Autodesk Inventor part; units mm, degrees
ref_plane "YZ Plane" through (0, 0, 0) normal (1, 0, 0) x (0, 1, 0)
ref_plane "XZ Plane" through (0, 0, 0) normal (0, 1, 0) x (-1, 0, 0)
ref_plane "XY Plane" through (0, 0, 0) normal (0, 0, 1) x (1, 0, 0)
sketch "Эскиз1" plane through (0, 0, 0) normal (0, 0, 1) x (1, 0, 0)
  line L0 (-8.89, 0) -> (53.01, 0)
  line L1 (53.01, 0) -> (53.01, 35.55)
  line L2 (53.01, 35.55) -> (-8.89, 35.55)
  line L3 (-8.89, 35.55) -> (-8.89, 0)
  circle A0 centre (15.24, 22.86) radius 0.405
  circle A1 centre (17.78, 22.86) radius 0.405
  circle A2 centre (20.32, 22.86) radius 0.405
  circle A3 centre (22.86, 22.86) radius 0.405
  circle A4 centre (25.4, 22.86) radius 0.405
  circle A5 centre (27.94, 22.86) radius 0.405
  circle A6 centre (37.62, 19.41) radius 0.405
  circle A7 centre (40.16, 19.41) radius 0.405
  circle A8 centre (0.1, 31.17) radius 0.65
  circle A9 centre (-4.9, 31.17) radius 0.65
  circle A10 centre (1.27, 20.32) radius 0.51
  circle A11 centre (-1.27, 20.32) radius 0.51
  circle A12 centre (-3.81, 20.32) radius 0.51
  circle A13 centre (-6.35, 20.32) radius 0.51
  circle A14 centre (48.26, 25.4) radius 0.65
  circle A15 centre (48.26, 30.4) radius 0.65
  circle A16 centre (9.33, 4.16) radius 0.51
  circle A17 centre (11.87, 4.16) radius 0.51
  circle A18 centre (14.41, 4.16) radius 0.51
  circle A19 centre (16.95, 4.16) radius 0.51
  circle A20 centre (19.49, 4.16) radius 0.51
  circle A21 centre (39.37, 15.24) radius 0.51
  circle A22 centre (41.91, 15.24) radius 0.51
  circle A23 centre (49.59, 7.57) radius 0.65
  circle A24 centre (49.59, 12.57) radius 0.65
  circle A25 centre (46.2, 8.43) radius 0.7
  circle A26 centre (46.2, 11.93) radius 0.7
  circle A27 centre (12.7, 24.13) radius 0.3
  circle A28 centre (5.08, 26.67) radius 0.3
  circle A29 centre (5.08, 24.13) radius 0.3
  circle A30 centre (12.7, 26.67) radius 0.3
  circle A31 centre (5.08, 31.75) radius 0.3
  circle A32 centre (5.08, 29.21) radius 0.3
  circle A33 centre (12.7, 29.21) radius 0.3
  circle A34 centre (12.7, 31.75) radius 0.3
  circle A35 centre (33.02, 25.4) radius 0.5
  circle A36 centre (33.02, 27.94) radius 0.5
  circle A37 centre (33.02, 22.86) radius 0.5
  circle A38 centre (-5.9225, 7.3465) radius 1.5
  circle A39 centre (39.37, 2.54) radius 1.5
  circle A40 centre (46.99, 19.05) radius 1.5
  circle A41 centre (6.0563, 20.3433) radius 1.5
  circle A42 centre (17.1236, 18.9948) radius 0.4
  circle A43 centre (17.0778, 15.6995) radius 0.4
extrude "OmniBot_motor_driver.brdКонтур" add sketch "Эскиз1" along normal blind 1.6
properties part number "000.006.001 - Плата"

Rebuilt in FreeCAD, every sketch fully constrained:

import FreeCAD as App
import Part
import Sketcher

V = App.Vector
Q = App.Units.Quantity


def add_polygon(sketch, points):
    """Adds a closed chain of lines whose ends are joined by coincident constraints."""
    first, n = sketch.GeometryCount, len(points)
    for a, b in zip(points, points[1:] + points[:1]):
        sketch.addGeometry(Part.LineSegment(App.Vector(*a, 0), App.Vector(*b, 0)), False)
    for i in range(n):
        sketch.addConstraint(Sketcher.Constraint("Coincident", first + i, 2, first + (i + 1) % n, 1))

doc = App.newDocument("Part")
body = doc.addObject("PartDesign::Body", "Body")

# Sketch on XY plane
sketch1 = body.newObject("Sketcher::SketchObject", "Sketch")
sketch1.AttachmentSupport = (doc.getObject("XY_Plane"), [""])
sketch1.MapMode = "FlatFace"
add_polygon(sketch1, [(-8.89, 35.55), (-8.89, 0), (53.01, 0), (53.01, 35.55)])  # lines 0-3
sketch1.addGeometry(Part.Circle(V(-5.9225, 7.3465, 0), V(0, 0, 1), 1.5), False)  # 4
sketch1.addGeometry(Part.Circle(V(9.33, 4.16, 0), V(0, 0, 1), 0.51), False)  # 5
sketch1.addGeometry(Part.Circle(V(11.87, 4.16, 0), V(0, 0, 1), 0.51), False)  # 6
sketch1.addGeometry(Part.Circle(V(14.41, 4.16, 0), V(0, 0, 1), 0.51), False)  # 7
sketch1.addGeometry(Part.Circle(V(16.95, 4.16, 0), V(0, 0, 1), 0.51), False)  # 8
sketch1.addGeometry(Part.Circle(V(19.49, 4.16, 0), V(0, 0, 1), 0.51), False)  # 9
sketch1.addGeometry(Part.Circle(V(17.0778, 15.6995, 0), V(0, 0, 1), 0.4), False)  # 10
sketch1.addGeometry(Part.Circle(V(39.37, 2.54, 0), V(0, 0, 1), 1.5), False)  # 11
sketch1.addGeometry(Part.Circle(V(46.2, 8.43, 0), V(0, 0, 1), 0.7), False)  # 12
sketch1.addGeometry(Part.Circle(V(49.59, 7.57, 0), V(0, 0, 1), 0.65), False)  # 13
sketch1.addGeometry(Part.Circle(V(46.2, 11.93, 0), V(0, 0, 1), 0.7), False)  # 14
sketch1.addGeometry(Part.Circle(V(49.59, 12.57, 0), V(0, 0, 1), 0.65), False)  # 15
sketch1.addGeometry(Part.Circle(V(39.37, 15.24, 0), V(0, 0, 1), 0.51), False)  # 16
sketch1.addGeometry(Part.Circle(V(41.91, 15.24, 0), V(0, 0, 1), 0.51), False)  # 17
sketch1.addGeometry(Part.Circle(V(-6.35, 20.32, 0), V(0, 0, 1), 0.51), False)  # 18
sketch1.addGeometry(Part.Circle(V(-3.81, 20.32, 0), V(0, 0, 1), 0.51), False)  # 19
sketch1.addGeometry(Part.Circle(V(-1.27, 20.32, 0), V(0, 0, 1), 0.51), False)  # 20
sketch1.addGeometry(Part.Circle(V(1.27, 20.32, 0), V(0, 0, 1), 0.51), False)  # 21
sketch1.addGeometry(Part.Circle(V(6.0563, 20.3433, 0), V(0, 0, 1), 1.5), False)  # 22
sketch1.addGeometry(Part.Circle(V(5.08, 24.13, 0), V(0, 0, 1), 0.3), False)  # 23
sketch1.addGeometry(Part.Circle(V(17.1236, 18.9948, 0), V(0, 0, 1), 0.4), False)  # 24
sketch1.addGeometry(Part.Circle(V(12.7, 24.13, 0), V(0, 0, 1), 0.3), False)  # 25
sketch1.addGeometry(Part.Circle(V(15.24, 22.86, 0), V(0, 0, 1), 0.405), False)  # 26
sketch1.addGeometry(Part.Circle(V(17.78, 22.86, 0), V(0, 0, 1), 0.405), False)  # 27
sketch1.addGeometry(Part.Circle(V(20.32, 22.86, 0), V(0, 0, 1), 0.405), False)  # 28
sketch1.addGeometry(Part.Circle(V(5.08, 26.67, 0), V(0, 0, 1), 0.3), False)  # 29
sketch1.addGeometry(Part.Circle(V(5.08, 29.21, 0), V(0, 0, 1), 0.3), False)  # 30
sketch1.addGeometry(Part.Circle(V(-4.9, 31.17, 0), V(0, 0, 1), 0.65), False)  # 31
sketch1.addGeometry(Part.Circle(V(0.1, 31.17, 0), V(0, 0, 1), 0.65), False)  # 32
sketch1.addGeometry(Part.Circle(V(5.08, 31.75, 0), V(0, 0, 1), 0.3), False)  # 33
sketch1.addGeometry(Part.Circle(V(12.7, 26.67, 0), V(0, 0, 1), 0.3), False)  # 34
sketch1.addGeometry(Part.Circle(V(12.7, 29.21, 0), V(0, 0, 1), 0.3), False)  # 35
sketch1.addGeometry(Part.Circle(V(12.7, 31.75, 0), V(0, 0, 1), 0.3), False)  # 36
sketch1.addGeometry(Part.Circle(V(22.86, 22.86, 0), V(0, 0, 1), 0.405), False)  # 37
sketch1.addGeometry(Part.Circle(V(25.4, 22.86, 0), V(0, 0, 1), 0.405), False)  # 38
sketch1.addGeometry(Part.Circle(V(27.94, 22.86, 0), V(0, 0, 1), 0.405), False)  # 39
sketch1.addGeometry(Part.Circle(V(33.02, 22.86, 0), V(0, 0, 1), 0.5), False)  # 40
sketch1.addGeometry(Part.Circle(V(33.02, 25.4, 0), V(0, 0, 1), 0.5), False)  # 41
sketch1.addGeometry(Part.Circle(V(37.62, 19.41, 0), V(0, 0, 1), 0.405), False)  # 42
sketch1.addGeometry(Part.Circle(V(40.16, 19.41, 0), V(0, 0, 1), 0.405), False)  # 43
sketch1.addGeometry(Part.Circle(V(46.99, 19.05, 0), V(0, 0, 1), 1.5), False)  # 44
sketch1.addGeometry(Part.Circle(V(48.26, 25.4, 0), V(0, 0, 1), 0.65), False)  # 45
sketch1.addGeometry(Part.Circle(V(33.02, 27.94, 0), V(0, 0, 1), 0.5), False)  # 46
sketch1.addGeometry(Part.Circle(V(48.26, 30.4, 0), V(0, 0, 1), 0.65), False)  # 47
sketch1.addConstraint(Sketcher.Constraint("Vertical", 0))
sketch1.addConstraint(Sketcher.Constraint("Horizontal", 1))
sketch1.addConstraint(Sketcher.Constraint("Vertical", 2))
sketch1.addConstraint(Sketcher.Constraint("Horizontal", 3))
sketch1.addConstraint(Sketcher.Constraint("Equal", 5, 6))
sketch1.addConstraint(Sketcher.Constraint("Equal", 6, 7))
sketch1.addConstraint(Sketcher.Constraint("Equal", 7, 8))
sketch1.addConstraint(Sketcher.Constraint("Equal", 8, 9))
sketch1.addConstraint(Sketcher.Constraint("Equal", 4, 11))
sketch1.addConstraint(Sketcher.Constraint("Equal", 12, 14))
sketch1.addConstraint(Sketcher.Constraint("Equal", 13, 15))
sketch1.addConstraint(Sketcher.Constraint("Equal", 9, 16))
sketch1.addConstraint(Sketcher.Constraint("Equal", 16, 17))
sketch1.addConstraint(Sketcher.Constraint("Equal", 17, 18))
sketch1.addConstraint(Sketcher.Constraint("Equal", 18, 19))
sketch1.addConstraint(Sketcher.Constraint("Equal", 19, 20))
sketch1.addConstraint(Sketcher.Constraint("Equal", 20, 21))
sketch1.addConstraint(Sketcher.Constraint("Equal", 11, 22))
sketch1.addConstraint(Sketcher.Constraint("Equal", 10, 24))
sketch1.addConstraint(Sketcher.Constraint("Equal", 23, 25))
sketch1.addConstraint(Sketcher.Constraint("Equal", 26, 27))
sketch1.addConstraint(Sketcher.Constraint("Equal", 27, 28))
sketch1.addConstraint(Sketcher.Constraint("Equal", 25, 29))
sketch1.addConstraint(Sketcher.Constraint("Equal", 29, 30))
sketch1.addConstraint(Sketcher.Constraint("Equal", 15, 31))
sketch1.addConstraint(Sketcher.Constraint("Equal", 31, 32))
sketch1.addConstraint(Sketcher.Constraint("Equal", 30, 33))
sketch1.addConstraint(Sketcher.Constraint("Equal", 33, 34))
sketch1.addConstraint(Sketcher.Constraint("Equal", 34, 35))
sketch1.addConstraint(Sketcher.Constraint("Equal", 35, 36))
sketch1.addConstraint(Sketcher.Constraint("Equal", 28, 37))
sketch1.addConstraint(Sketcher.Constraint("Equal", 37, 38))
sketch1.addConstraint(Sketcher.Constraint("Equal", 38, 39))
sketch1.addConstraint(Sketcher.Constraint("Equal", 40, 41))
sketch1.addConstraint(Sketcher.Constraint("Equal", 39, 42))
sketch1.addConstraint(Sketcher.Constraint("Equal", 42, 43))
sketch1.addConstraint(Sketcher.Constraint("Equal", 22, 44))
sketch1.addConstraint(Sketcher.Constraint("Equal", 32, 45))
sketch1.addConstraint(Sketcher.Constraint("Equal", 41, 46))
sketch1.addConstraint(Sketcher.Constraint("Equal", 45, 47))
sketch1.addConstraint(Sketcher.Constraint("Symmetric", 20, 3, 21, 3, -2))
sketch1.addConstraint(Sketcher.Constraint("PointOnObject", 0, 2, -1))
sketch1.addConstraint(Sketcher.Constraint("Horizontal", 5, 3, 6, 3))
sketch1.addConstraint(Sketcher.Constraint("Horizontal", 6, 3, 7, 3))
sketch1.addConstraint(Sketcher.Constraint("Horizontal", 7, 3, 8, 3))
sketch1.addConstraint(Sketcher.Constraint("Horizontal", 8, 3, 9, 3))
sketch1.addConstraint(Sketcher.Constraint("Horizontal", 16, 3, 17, 3))
sketch1.addConstraint(Sketcher.Constraint("Horizontal", 18, 3, 19, 3))
sketch1.addConstraint(Sketcher.Constraint("Horizontal", 19, 3, 20, 3))
sketch1.addConstraint(Sketcher.Constraint("Horizontal", 23, 3, 25, 3))
sketch1.addConstraint(Sketcher.Constraint("Horizontal", 26, 3, 27, 3))
sketch1.addConstraint(Sketcher.Constraint("Horizontal", 27, 3, 28, 3))
sketch1.addConstraint(Sketcher.Constraint("Horizontal", 31, 3, 32, 3))
sketch1.addConstraint(Sketcher.Constraint("Horizontal", 29, 3, 34, 3))
sketch1.addConstraint(Sketcher.Constraint("Horizontal", 30, 3, 35, 3))
sketch1.addConstraint(Sketcher.Constraint("Horizontal", 33, 3, 36, 3))
sketch1.addConstraint(Sketcher.Constraint("Horizontal", 28, 3, 37, 3))
sketch1.addConstraint(Sketcher.Constraint("Horizontal", 37, 3, 38, 3))
sketch1.addConstraint(Sketcher.Constraint("Horizontal", 38, 3, 39, 3))
sketch1.addConstraint(Sketcher.Constraint("Horizontal", 39, 3, 40, 3))
sketch1.addConstraint(Sketcher.Constraint("Horizontal", 42, 3, 43, 3))
sketch1.addConstraint(Sketcher.Constraint("Horizontal", 41, 3, 45, 3))
sketch1.addConstraint(Sketcher.Constraint("Vertical", 12, 3, 14, 3))
sketch1.addConstraint(Sketcher.Constraint("Vertical", 13, 3, 15, 3))
sketch1.addConstraint(Sketcher.Constraint("Vertical", 11, 3, 16, 3))
sketch1.addConstraint(Sketcher.Constraint("Vertical", 23, 3, 29, 3))
sketch1.addConstraint(Sketcher.Constraint("Vertical", 29, 3, 30, 3))
sketch1.addConstraint(Sketcher.Constraint("Vertical", 30, 3, 33, 3))
sketch1.addConstraint(Sketcher.Constraint("Vertical", 25, 3, 34, 3))
sketch1.addConstraint(Sketcher.Constraint("Vertical", 34, 3, 35, 3))
sketch1.addConstraint(Sketcher.Constraint("Vertical", 35, 3, 36, 3))
sketch1.addConstraint(Sketcher.Constraint("Vertical", 40, 3, 41, 3))
sketch1.addConstraint(Sketcher.Constraint("Vertical", 41, 3, 46, 3))
sketch1.addConstraint(Sketcher.Constraint("Vertical", 45, 3, 47, 3))
sketch1.addConstraint(Sketcher.Constraint("Diameter", 4, Q("3 mm")))
sketch1.addConstraint(Sketcher.Constraint("Diameter", 40, Q("1 mm")))
sketch1.addConstraint(Sketcher.Constraint("Diameter", 10, Q("0.8 mm")))
sketch1.addConstraint(Sketcher.Constraint("Diameter", 12, Q("1.4 mm")))
sketch1.addConstraint(Sketcher.Constraint("Diameter", 13, Q("1.3 mm")))
sketch1.addConstraint(Sketcher.Constraint("Diameter", 23, Q("0.6 mm")))
sketch1.addConstraint(Sketcher.Constraint("Diameter", 5, Q("1.02 mm")))
sketch1.addConstraint(Sketcher.Constraint("Diameter", 26, Q("0.81 mm")))
sketch1.addConstraint(Sketcher.Constraint("DistanceX", 1, 1, 1, 2, Q("61.9 mm")))
sketch1.addConstraint(Sketcher.Constraint("DistanceY", 13, 3, 15, 3, Q("5 mm")))
sketch1.addConstraint(Sketcher.Constraint("DistanceX", 31, 3, 32, 3, Q("5 mm")))
sketch1.addConstraint(Sketcher.Constraint("DistanceY", 45, 3, 47, 3, Q("5 mm")))
sketch1.addConstraint(Sketcher.Constraint("DistanceY", 0, 2, 0, 1, Q("35.55 mm")))
sketch1.addConstraint(Sketcher.Constraint("DistanceX", -1, 1, 12, 3, Q("46.2 mm")))
sketch1.addConstraint(Sketcher.Constraint("DistanceX", -1, 1, 25, 3, Q("12.7 mm")))
sketch1.addConstraint(Sketcher.Constraint("DistanceX", 31, 3, -1, 1, Q("4.9 mm")))
sketch1.addConstraint(Sketcher.Constraint("DistanceX", -1, 1, 38, 3, Q("25.4 mm")))
sketch1.addConstraint(Sketcher.Constraint("DistanceY", -1, 1, 41, 3, Q("25.4 mm")))
sketch1.addConstraint(Sketcher.Constraint("DistanceX", 6, 3, 11, 3, Q("27.5 mm")))
sketch1.addConstraint(Sketcher.Constraint("DistanceX", 9, 3, 13, 3, Q("30.1 mm")))
sketch1.addConstraint(Sketcher.Constraint("DistanceY", 12, 3, 14, 3, Q("3.5 mm")))
sketch1.addConstraint(Sketcher.Constraint("DistanceY", 11, 3, 16, 3, Q("12.7 mm")))
sketch1.addConstraint(Sketcher.Constraint("DistanceX", 20, 3, 5, 3, Q("10.6 mm")))
sketch1.addConstraint(Sketcher.Constraint("DistanceY", 29, 3, 31, 3, Q("4.5 mm")))
sketch1.addConstraint(Sketcher.Constraint("DistanceX", 40, 3, 42, 3, Q("4.6 mm")))
sketch1.addConstraint(Sketcher.Constraint("DistanceX", 44, 3, 15, 3, Q("2.6 mm")))
sketch1.addConstraint(Sketcher.Constraint("DistanceX", 43, 3, 45, 3, Q("8.1 mm")))
sketch1.addConstraint(Sketcher.Constraint("DistanceY", 44, 3, 2, 2, Q("16.5 mm")))
sketch1.addConstraint(Sketcher.Constraint("DistanceY", 33, 3, 3, 2, Q("3.8 mm")))
sketch1.addConstraint(Sketcher.Constraint("DistanceX", -1, 1, 5, 3, Q("9.33 mm")))
sketch1.addConstraint(Sketcher.Constraint("DistanceY", -1, 1, 5, 3, Q("4.16 mm")))
sketch1.addConstraint(Sketcher.Constraint("DistanceX", -1, 1, 6, 3, Q("11.87 mm")))
sketch1.addConstraint(Sketcher.Constraint("DistanceX", -1, 1, 7, 3, Q("14.41 mm")))
sketch1.addConstraint(Sketcher.Constraint("DistanceX", -1, 1, 8, 3, Q("16.95 mm")))
sketch1.addConstraint(Sketcher.Constraint("DistanceX", -1, 1, 9, 3, Q("19.49 mm")))
sketch1.addConstraint(Sketcher.Constraint("DistanceY", -1, 1, 11, 3, Q("2.54 mm")))
sketch1.addConstraint(Sketcher.Constraint("DistanceY", -1, 1, 12, 3, Q("8.43 mm")))
sketch1.addConstraint(Sketcher.Constraint("DistanceY", -1, 1, 13, 3, Q("7.57 mm")))
sketch1.addConstraint(Sketcher.Constraint("DistanceX", -1, 1, 17, 3, Q("41.91 mm")))
sketch1.addConstraint(Sketcher.Constraint("DistanceX", 18, 3, -1, 1, Q("6.35 mm")))
sketch1.addConstraint(Sketcher.Constraint("DistanceY", -1, 1, 18, 3, Q("20.32 mm")))
sketch1.addConstraint(Sketcher.Constraint("DistanceX", 19, 3, -1, 1, Q("3.81 mm")))
sketch1.addConstraint(Sketcher.Constraint("DistanceX", -1, 1, 23, 3, Q("5.08 mm")))
sketch1.addConstraint(Sketcher.Constraint("DistanceY", -1, 1, 23, 3, Q("24.13 mm")))
sketch1.addConstraint(Sketcher.Constraint("DistanceX", -1, 1, 26, 3, Q("15.24 mm")))
sketch1.addConstraint(Sketcher.Constraint("DistanceY", -1, 1, 26, 3, Q("22.86 mm")))
sketch1.addConstraint(Sketcher.Constraint("DistanceX", -1, 1, 27, 3, Q("17.78 mm")))
sketch1.addConstraint(Sketcher.Constraint("DistanceX", -1, 1, 28, 3, Q("20.32 mm")))
sketch1.addConstraint(Sketcher.Constraint("DistanceY", -1, 1, 29, 3, Q("26.67 mm")))
sketch1.addConstraint(Sketcher.Constraint("DistanceY", -1, 1, 30, 3, Q("29.21 mm")))
sketch1.addConstraint(Sketcher.Constraint("DistanceX", -1, 1, 37, 3, Q("22.86 mm")))
sketch1.addConstraint(Sketcher.Constraint("DistanceX", -1, 1, 39, 3, Q("27.94 mm")))
sketch1.addConstraint(Sketcher.Constraint("DistanceX", -1, 1, 40, 3, Q("33.02 mm")))
sketch1.addConstraint(Sketcher.Constraint("DistanceY", -1, 1, 42, 3, Q("19.41 mm")))
sketch1.addConstraint(Sketcher.Constraint("DistanceX", -1, 1, 43, 3, Q("40.16 mm")))
sketch1.addConstraint(Sketcher.Constraint("DistanceY", -1, 1, 46, 3, Q("27.94 mm")))
sketch1.addConstraint(Sketcher.Constraint("DistanceX", 0, 2, -1, 1, Q("8.89 mm")))
sketch1.addConstraint(Sketcher.Constraint("DistanceX", 4, 3, -1, 1, Q("5.9225 mm")))
sketch1.addConstraint(Sketcher.Constraint("DistanceY", -1, 1, 4, 3, Q("7.3465 mm")))
sketch1.addConstraint(Sketcher.Constraint("DistanceX", -1, 1, 10, 3, Q("17.0778 mm")))
sketch1.addConstraint(Sketcher.Constraint("DistanceY", -1, 1, 10, 3, Q("15.6995 mm")))
sketch1.addConstraint(Sketcher.Constraint("DistanceX", -1, 1, 22, 3, Q("6.0563 mm")))
sketch1.addConstraint(Sketcher.Constraint("DistanceY", -1, 1, 22, 3, Q("20.3433 mm")))
sketch1.addConstraint(Sketcher.Constraint("DistanceX", -1, 1, 24, 3, Q("17.1236 mm")))
sketch1.addConstraint(Sketcher.Constraint("DistanceY", -1, 1, 24, 3, Q("18.9948 mm")))
pad1 = body.newObject("PartDesign::Pad", "Pad")
pad1.Profile = sketch1
pad1.Length = 1.6

doc.recompute()
